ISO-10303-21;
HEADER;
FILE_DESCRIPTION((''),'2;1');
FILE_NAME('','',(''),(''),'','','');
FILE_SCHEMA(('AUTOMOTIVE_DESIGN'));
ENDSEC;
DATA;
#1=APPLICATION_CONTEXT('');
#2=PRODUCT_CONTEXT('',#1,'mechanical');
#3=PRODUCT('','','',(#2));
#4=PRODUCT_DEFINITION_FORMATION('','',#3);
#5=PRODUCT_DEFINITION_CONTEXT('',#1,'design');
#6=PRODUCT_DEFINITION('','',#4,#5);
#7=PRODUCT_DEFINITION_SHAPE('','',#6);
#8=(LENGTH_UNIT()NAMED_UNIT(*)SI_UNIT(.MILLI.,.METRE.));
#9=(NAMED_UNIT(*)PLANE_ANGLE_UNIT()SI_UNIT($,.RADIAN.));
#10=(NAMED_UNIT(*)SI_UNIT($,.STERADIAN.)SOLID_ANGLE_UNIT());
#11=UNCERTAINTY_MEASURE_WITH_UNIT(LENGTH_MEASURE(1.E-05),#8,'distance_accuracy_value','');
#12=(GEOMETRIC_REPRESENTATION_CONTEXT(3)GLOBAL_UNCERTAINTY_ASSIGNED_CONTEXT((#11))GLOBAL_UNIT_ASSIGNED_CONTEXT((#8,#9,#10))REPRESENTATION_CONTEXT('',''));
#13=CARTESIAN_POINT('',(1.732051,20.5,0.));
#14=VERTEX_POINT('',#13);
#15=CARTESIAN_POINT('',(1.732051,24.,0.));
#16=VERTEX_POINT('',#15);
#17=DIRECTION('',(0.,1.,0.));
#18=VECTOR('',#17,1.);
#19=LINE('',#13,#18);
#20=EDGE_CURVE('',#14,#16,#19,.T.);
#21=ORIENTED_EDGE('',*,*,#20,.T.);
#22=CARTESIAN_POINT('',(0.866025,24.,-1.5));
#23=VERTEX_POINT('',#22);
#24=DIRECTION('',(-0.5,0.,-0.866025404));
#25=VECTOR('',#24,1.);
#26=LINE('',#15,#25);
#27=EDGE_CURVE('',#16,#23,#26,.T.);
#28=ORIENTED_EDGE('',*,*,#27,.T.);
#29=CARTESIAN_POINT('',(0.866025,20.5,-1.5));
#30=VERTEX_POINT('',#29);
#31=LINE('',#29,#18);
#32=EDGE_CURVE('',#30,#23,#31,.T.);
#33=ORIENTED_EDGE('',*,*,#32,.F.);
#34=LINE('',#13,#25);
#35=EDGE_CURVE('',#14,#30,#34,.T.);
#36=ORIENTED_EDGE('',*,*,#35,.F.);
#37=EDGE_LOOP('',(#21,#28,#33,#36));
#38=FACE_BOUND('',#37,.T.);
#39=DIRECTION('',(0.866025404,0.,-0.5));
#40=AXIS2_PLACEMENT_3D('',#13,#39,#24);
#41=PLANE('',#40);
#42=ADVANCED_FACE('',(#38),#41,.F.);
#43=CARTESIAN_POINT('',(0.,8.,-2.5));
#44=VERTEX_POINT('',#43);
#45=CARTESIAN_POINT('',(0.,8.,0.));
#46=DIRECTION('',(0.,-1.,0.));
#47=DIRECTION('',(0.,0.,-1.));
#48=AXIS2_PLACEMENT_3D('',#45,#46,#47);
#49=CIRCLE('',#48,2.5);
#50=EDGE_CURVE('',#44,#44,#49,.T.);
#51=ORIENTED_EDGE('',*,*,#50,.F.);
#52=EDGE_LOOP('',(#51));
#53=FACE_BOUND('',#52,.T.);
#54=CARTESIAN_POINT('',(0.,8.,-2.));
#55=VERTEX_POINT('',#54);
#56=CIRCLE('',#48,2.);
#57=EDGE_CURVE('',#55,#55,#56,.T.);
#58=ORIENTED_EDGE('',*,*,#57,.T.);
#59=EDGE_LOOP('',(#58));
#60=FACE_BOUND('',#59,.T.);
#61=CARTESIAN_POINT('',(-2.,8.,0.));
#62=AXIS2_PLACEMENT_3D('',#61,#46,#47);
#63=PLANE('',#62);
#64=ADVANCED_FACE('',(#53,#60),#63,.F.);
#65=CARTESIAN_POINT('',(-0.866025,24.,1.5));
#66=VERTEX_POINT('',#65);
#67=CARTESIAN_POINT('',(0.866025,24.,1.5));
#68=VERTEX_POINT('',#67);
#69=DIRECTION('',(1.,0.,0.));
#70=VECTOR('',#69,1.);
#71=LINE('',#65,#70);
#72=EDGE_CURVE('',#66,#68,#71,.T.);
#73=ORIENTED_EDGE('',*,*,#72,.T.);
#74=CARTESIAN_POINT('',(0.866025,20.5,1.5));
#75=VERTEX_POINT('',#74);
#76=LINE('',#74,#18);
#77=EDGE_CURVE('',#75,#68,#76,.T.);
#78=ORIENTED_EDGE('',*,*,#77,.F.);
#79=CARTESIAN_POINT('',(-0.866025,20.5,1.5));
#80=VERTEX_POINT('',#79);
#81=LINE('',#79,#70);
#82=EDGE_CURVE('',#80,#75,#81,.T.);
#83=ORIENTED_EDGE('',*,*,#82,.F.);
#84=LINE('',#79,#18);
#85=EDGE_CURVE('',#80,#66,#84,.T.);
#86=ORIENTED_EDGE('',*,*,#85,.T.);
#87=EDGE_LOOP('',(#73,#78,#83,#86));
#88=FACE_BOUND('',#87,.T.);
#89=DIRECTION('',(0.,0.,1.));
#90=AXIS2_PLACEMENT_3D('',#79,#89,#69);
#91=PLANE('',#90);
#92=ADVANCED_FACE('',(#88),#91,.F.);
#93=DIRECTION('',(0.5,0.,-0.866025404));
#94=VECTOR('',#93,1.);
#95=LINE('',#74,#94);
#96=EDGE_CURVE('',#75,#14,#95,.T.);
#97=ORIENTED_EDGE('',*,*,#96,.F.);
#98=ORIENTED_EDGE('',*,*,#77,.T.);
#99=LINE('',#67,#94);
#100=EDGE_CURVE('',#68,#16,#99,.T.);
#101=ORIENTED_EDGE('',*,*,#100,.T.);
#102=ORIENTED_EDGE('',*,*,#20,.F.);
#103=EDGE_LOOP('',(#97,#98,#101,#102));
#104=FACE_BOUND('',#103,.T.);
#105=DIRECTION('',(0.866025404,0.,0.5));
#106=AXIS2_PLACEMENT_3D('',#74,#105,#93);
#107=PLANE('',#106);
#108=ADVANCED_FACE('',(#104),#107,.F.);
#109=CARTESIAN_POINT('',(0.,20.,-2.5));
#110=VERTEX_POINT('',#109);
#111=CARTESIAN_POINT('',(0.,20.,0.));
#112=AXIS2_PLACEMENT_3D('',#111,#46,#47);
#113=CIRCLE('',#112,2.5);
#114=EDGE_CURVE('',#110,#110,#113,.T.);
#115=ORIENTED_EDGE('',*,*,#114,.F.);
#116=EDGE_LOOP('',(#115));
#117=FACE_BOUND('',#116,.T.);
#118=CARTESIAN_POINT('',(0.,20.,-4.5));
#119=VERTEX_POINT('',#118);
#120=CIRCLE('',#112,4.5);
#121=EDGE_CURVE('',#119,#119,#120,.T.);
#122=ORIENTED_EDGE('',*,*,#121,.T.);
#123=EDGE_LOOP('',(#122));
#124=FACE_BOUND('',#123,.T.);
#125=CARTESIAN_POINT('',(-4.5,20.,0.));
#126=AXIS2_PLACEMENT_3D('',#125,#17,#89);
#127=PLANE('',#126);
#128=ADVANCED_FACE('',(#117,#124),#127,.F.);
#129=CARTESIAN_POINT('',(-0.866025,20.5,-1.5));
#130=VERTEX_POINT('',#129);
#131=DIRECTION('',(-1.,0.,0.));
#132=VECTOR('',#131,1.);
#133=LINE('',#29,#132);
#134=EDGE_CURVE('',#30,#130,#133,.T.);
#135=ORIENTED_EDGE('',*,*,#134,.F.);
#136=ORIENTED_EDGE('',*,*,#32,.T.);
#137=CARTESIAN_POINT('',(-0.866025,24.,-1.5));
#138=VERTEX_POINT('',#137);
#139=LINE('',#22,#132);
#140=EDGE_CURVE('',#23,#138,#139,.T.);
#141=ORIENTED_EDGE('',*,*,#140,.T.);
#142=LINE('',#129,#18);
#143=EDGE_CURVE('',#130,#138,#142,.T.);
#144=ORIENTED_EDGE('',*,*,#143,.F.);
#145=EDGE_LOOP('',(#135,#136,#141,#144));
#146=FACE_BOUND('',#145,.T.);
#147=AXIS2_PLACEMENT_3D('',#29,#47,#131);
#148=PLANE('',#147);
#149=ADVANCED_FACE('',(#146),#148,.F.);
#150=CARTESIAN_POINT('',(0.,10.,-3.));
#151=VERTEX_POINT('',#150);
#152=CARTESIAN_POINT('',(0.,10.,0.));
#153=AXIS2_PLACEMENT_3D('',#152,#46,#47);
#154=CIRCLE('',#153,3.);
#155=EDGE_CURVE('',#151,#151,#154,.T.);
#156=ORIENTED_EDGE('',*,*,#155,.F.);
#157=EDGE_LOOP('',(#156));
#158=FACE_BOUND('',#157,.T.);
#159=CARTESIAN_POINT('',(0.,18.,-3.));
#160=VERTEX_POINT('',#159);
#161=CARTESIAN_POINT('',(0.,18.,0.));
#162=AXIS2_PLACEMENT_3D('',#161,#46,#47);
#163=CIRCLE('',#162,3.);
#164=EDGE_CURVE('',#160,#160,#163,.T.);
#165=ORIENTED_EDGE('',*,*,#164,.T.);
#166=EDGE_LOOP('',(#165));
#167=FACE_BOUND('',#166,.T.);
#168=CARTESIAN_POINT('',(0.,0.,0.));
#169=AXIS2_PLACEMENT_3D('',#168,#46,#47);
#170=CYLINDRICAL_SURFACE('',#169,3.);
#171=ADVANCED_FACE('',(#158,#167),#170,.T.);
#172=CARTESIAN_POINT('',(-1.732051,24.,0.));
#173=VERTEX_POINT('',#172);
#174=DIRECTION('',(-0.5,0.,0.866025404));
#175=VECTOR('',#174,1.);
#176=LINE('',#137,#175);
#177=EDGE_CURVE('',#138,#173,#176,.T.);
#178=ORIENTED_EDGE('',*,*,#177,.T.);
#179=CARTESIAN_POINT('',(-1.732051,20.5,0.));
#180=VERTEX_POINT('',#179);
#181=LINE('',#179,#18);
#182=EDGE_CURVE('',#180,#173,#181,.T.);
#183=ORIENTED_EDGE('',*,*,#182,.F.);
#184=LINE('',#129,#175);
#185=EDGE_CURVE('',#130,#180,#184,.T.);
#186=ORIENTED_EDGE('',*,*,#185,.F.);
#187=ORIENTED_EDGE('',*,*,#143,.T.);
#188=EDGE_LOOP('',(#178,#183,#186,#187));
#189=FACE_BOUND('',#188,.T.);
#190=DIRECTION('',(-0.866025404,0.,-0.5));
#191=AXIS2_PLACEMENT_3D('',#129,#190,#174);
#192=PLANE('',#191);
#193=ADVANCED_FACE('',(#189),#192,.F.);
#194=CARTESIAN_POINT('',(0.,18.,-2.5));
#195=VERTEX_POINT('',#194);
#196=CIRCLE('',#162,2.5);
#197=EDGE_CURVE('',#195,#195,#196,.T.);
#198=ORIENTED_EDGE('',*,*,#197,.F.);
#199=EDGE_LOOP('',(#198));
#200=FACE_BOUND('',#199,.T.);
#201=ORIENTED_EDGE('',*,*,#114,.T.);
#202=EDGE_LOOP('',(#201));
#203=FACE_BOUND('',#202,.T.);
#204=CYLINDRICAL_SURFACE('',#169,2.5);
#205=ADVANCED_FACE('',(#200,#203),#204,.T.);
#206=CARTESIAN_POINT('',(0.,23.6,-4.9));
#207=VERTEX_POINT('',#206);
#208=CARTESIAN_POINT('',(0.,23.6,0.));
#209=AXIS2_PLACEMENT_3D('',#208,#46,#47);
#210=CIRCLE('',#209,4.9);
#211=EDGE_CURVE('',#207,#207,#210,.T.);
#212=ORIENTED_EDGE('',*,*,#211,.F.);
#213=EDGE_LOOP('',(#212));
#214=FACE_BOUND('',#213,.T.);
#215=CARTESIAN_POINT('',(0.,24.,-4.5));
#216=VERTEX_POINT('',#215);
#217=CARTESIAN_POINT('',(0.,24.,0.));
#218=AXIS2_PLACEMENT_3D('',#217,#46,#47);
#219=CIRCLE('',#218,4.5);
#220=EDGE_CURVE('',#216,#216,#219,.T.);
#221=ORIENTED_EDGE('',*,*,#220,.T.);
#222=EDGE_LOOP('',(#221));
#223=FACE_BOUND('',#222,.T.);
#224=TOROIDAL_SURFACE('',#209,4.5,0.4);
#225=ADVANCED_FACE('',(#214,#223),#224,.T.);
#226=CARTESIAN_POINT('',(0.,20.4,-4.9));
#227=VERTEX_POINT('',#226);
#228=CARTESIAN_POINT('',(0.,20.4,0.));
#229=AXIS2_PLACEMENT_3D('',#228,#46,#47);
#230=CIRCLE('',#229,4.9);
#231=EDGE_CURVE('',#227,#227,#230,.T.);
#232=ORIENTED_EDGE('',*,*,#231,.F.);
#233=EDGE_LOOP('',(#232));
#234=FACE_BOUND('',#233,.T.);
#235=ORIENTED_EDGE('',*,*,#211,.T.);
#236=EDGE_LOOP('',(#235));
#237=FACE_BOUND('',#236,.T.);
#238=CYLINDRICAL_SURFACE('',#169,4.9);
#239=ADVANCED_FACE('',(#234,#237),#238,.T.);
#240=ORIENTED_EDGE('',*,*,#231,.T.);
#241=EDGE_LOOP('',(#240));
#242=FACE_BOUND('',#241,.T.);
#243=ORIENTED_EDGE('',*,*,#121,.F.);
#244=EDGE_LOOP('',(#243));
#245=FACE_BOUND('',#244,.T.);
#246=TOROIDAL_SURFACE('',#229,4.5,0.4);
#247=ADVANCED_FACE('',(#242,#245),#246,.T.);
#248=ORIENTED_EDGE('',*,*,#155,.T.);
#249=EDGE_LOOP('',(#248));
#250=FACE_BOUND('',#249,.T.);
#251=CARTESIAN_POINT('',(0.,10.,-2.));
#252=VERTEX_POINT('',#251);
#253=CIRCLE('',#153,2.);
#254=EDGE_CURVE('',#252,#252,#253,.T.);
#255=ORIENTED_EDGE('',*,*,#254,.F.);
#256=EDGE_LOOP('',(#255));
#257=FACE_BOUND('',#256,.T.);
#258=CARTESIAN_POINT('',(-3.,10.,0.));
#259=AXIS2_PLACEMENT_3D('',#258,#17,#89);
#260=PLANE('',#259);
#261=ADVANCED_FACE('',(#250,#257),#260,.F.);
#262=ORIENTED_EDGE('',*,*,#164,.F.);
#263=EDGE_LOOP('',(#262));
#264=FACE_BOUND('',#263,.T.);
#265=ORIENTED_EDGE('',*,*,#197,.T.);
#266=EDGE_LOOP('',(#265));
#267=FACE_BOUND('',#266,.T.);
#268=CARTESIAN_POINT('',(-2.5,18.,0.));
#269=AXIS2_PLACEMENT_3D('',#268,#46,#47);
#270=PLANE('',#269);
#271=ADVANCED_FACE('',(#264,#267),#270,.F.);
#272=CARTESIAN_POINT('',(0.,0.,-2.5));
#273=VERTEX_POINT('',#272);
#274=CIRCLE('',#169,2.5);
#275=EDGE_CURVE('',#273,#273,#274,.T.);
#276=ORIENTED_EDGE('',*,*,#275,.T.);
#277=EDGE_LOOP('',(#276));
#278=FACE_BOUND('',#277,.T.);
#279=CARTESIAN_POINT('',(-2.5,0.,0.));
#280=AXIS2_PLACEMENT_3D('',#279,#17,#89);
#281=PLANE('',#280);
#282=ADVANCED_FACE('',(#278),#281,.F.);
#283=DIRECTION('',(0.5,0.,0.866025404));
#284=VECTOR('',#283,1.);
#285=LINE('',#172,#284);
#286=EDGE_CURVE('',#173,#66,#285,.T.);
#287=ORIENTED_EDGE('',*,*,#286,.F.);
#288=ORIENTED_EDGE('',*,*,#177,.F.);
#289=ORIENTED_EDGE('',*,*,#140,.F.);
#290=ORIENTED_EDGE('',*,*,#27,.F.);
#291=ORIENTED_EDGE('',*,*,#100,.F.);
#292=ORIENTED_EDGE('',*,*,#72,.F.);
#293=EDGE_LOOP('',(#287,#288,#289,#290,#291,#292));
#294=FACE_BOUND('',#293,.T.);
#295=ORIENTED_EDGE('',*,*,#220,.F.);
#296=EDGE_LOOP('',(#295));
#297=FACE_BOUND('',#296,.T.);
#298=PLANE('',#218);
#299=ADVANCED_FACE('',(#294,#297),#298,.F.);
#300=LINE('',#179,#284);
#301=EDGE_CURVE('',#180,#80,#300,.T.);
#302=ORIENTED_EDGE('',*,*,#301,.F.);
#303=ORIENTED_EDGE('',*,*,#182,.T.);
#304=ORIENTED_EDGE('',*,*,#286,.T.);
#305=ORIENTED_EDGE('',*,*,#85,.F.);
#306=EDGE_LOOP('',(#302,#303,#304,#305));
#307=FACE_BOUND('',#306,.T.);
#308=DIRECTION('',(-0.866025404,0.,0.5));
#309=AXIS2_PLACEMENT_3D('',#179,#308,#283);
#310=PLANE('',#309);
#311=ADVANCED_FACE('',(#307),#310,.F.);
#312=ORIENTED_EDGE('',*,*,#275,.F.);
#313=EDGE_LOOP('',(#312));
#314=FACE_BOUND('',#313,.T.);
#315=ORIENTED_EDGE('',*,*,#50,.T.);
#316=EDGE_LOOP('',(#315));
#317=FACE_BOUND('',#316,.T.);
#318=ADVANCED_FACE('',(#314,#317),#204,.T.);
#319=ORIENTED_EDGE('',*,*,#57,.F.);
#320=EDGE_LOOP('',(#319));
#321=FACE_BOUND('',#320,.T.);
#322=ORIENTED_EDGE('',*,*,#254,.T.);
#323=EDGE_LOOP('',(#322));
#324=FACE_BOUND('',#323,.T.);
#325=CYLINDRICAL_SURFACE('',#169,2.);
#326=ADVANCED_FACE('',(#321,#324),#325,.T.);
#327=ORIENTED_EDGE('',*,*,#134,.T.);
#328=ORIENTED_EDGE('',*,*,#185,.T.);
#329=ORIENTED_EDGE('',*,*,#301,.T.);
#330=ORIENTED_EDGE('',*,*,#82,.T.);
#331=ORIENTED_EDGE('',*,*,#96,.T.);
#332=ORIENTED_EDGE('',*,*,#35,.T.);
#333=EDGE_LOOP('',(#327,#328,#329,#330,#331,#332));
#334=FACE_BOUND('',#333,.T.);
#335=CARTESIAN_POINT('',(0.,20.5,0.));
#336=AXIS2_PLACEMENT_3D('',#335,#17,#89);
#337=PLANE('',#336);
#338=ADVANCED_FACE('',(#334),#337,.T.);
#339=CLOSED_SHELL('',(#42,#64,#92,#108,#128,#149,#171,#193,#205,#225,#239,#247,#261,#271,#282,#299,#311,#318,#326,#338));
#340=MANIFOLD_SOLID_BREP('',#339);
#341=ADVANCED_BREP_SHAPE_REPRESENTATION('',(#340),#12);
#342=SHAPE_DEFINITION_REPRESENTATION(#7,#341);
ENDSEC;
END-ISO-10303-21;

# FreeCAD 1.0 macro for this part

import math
import FreeCAD as App
import Part
import Sketcher

V = App.Vector
Q = App.Units.Quantity


def add_polygon(sketch, points):
    """Adds a closed chain of lines whose ends are joined by coincident constraints."""
    first, n = sketch.GeometryCount, len(points)
    for a, b in zip(points, points[1:] + points[:1]):
        sketch.addGeometry(Part.LineSegment(App.Vector(*a, 0), App.Vector(*b, 0)), False)
    for i in range(n):
        sketch.addConstraint(Sketcher.Constraint("Coincident", first + i, 2, first + (i + 1) % n, 1))

doc = App.newDocument("Part")
params = doc.addObject("Spreadsheet::Sheet", "Params")
for row, (alias, value) in enumerate([
    ("sketch1_radius", "0.4 mm"),
    ("sketch1_width", "2 mm"),
    ("sketch1_width2", "1 mm"),
    ("sketch1_height", "8 mm"),
    ("sketch1_height2", "24 mm"),
    ("revolution_angle", "360 deg"),
    ("pocket1_length", "3.5 mm"),
], start=1):
    params.set(f"A{row}", alias)
    params.set(f"B{row}", "=" + value)
    params.setAlias(f"B{row}", alias)

body = doc.addObject("PartDesign::Body", "Body")

sketch1 = doc.addObject("Sketcher::SketchObject", "Sketch")
body.addObject(sketch1)
sketch1.AttachmentSupport = (doc.XY_Plane, [""])
sketch1.MapMode = "FlatFace"
sketch1.addGeometry(Part.LineSegment(V(0, 24, 0), V(-4.5, 24, 0)), False)
sketch1.addGeometry(Part.ArcOfCircle(Part.Circle(V(-4.5, 23.6, 0), V(0, 0, 1), 0.4), math.radians(90), math.radians(180)), False)
sketch1.addGeometry(Part.LineSegment(V(-4.9, 23.6, 0), V(-4.9, 20.4, 0)), False)
sketch1.addGeometry(Part.ArcOfCircle(Part.Circle(V(-4.5, 20.4, 0), V(0, 0, 1), 0.4), math.radians(-180), math.radians(-90)), False)
sketch1.addGeometry(Part.LineSegment(V(-4.5, 20, 0), V(-2.5, 20, 0)), False)
sketch1.addGeometry(Part.LineSegment(V(-2.5, 20, 0), V(-2.5, 18, 0)), False)
sketch1.addGeometry(Part.LineSegment(V(-2.5, 18, 0), V(-3, 18, 0)), False)
sketch1.addGeometry(Part.LineSegment(V(-3, 18, 0), V(-3, 10, 0)), False)
sketch1.addGeometry(Part.LineSegment(V(-3, 10, 0), V(-2, 10, 0)), False)
sketch1.addGeometry(Part.LineSegment(V(-2, 10, 0), V(-2, 8, 0)), False)
sketch1.addGeometry(Part.LineSegment(V(-2, 8, 0), V(-2.5, 8, 0)), False)
sketch1.addGeometry(Part.LineSegment(V(-2.5, 8, 0), V(-2.5, 0, 0)), False)
sketch1.addGeometry(Part.LineSegment(V(-2.5, 0, 0), V(0, 0, 0)), False)
sketch1.addGeometry(Part.LineSegment(V(0, 0, 0), V(0, 24, 0)), False)
sketch1.addConstraint(Sketcher.Constraint("Tangent", 0, 2, 1, 1))
sketch1.addConstraint(Sketcher.Constraint("Tangent", 1, 2, 2, 1))
sketch1.addConstraint(Sketcher.Constraint("Tangent", 2, 2, 3, 1))
sketch1.addConstraint(Sketcher.Constraint("Tangent", 3, 2, 4, 1))
sketch1.addConstraint(Sketcher.Constraint("Coincident", 4, 2, 5, 1))
sketch1.addConstraint(Sketcher.Constraint("Coincident", 5, 2, 6, 1))
sketch1.addConstraint(Sketcher.Constraint("Coincident", 6, 2, 7, 1))
sketch1.addConstraint(Sketcher.Constraint("Coincident", 7, 2, 8, 1))
sketch1.addConstraint(Sketcher.Constraint("Coincident", 8, 2, 9, 1))
sketch1.addConstraint(Sketcher.Constraint("Coincident", 9, 2, 10, 1))
sketch1.addConstraint(Sketcher.Constraint("Coincident", 10, 2, 11, 1))
sketch1.addConstraint(Sketcher.Constraint("Coincident", 11, 2, 12, 1))
sketch1.addConstraint(Sketcher.Constraint("Coincident", 12, 2, 13, 1))
sketch1.addConstraint(Sketcher.Constraint("Coincident", 13, 2, 0, 1))
sketch1.addConstraint(Sketcher.Constraint("Horizontal", 0))
sketch1.addConstraint(Sketcher.Constraint("Vertical", 2))
sketch1.addConstraint(Sketcher.Constraint("Horizontal", 4))
sketch1.addConstraint(Sketcher.Constraint("Vertical", 5))
sketch1.addConstraint(Sketcher.Constraint("Horizontal", 6))
sketch1.addConstraint(Sketcher.Constraint("Vertical", 7))
sketch1.addConstraint(Sketcher.Constraint("Horizontal", 8))
sketch1.addConstraint(Sketcher.Constraint("Vertical", 9))
sketch1.addConstraint(Sketcher.Constraint("Horizontal", 10))
sketch1.addConstraint(Sketcher.Constraint("Vertical", 11))
sketch1.addConstraint(Sketcher.Constraint("Horizontal", 12))
sketch1.addConstraint(Sketcher.Constraint("Vertical", 13))
sketch1.addConstraint(Sketcher.Constraint("Coincident", 12, 2, -1, 1))
sketch1.addConstraint(Sketcher.Constraint("Equal", 1, 3))
sketch1.addConstraint(Sketcher.Constraint("Vertical", 5, 2, 10, 2))
sketch1.addConstraint(Sketcher.Constraint("Equal", 6, 10))
sketch1.addConstraint(Sketcher.Constraint("Equal", 4, 5))
sketch1.addConstraint(Sketcher.Constraint("Equal", 5, 9))
sketch1.addConstraint(Sketcher.Constraint("Equal", 7, 11))
sketch1.addConstraint(Sketcher.Constraint("Radius", 1, Q("0.4 mm")))
sketch1.addConstraint(Sketcher.Constraint("DistanceX", 4, 1, 4, 2, Q("2 mm")))
sketch1.addConstraint(Sketcher.Constraint("DistanceX", 8, 1, 8, 2, Q("1 mm")))
sketch1.addConstraint(Sketcher.Constraint("DistanceY", 7, 2, 7, 1, Q("8 mm")))
sketch1.addConstraint(Sketcher.Constraint("DistanceY", 13, 1, 13, 2, Q("24 mm")))
sketch1.addConstraint(Sketcher.Constraint("DistanceX", 0, 2, 0, 1, Q("4.5 mm")))
sketch1.setExpression("Constraints[33]", "Params.sketch1_radius")
sketch1.setExpression("Constraints[34]", "Params.sketch1_width")
sketch1.setExpression("Constraints[35]", "Params.sketch1_width2")
sketch1.setExpression("Constraints[36]", "Params.sketch1_height")
sketch1.setExpression("Constraints[37]", "Params.sketch1_height2")
revolution = doc.addObject("PartDesign::Revolution", "Revolution")
body.addObject(revolution)
revolution.Profile = sketch1
revolution.ReferenceAxis = (sketch1, ["V_Axis"])
revolution.setExpression("Angle", "Params.revolution_angle")

sketch2 = doc.addObject("Sketcher::SketchObject", "Sketch001")
body.addObject(sketch2)
sketch2.AttachmentSupport = (doc.XZ_Plane, [""])
sketch2.MapMode = "FlatFace"
sketch2.AttachmentOffset = App.Placement(V(0, 0, -24), App.Rotation())
add_polygon(sketch2, [(0.9, -1.5), (-0.9, -1.5), (-1.7, 0), (-0.9, 1.5), (0.9, 1.5), (1.7, 0)])
sketch2.addConstraint(Sketcher.Constraint("Horizontal", 0))
sketch2.addConstraint(Sketcher.Constraint("Horizontal", 3))
sketch2.addConstraint(Sketcher.Constraint("Symmetric", 0, 2, 3, 2, -1, 1))
sketch2.addConstraint(Sketcher.Constraint("Symmetric", 1, 2, 4, 2, -1, 1))
sketch2.addConstraint(Sketcher.Constraint("PointOnObject", 1, 2, -1))
sketch2.addConstraint(Sketcher.Constraint("Parallel", 2, 5))
sketch2.addConstraint(Sketcher.Constraint("Vertical", 0, 2, 2, 2))
sketch2.addConstraint(Sketcher.Constraint("Angle", 1, Q("120 deg")))
sketch2.addConstraint(Sketcher.Constraint("DistanceY", 0, 2, 2, 2, Q("3 mm")))
sketch2.addConstraint(Sketcher.Constraint("DistanceX", 0, 2, 0, 1, Q("1.732051 mm")))
pocket1 = doc.addObject("PartDesign::Pocket", "Pocket")
body.addObject(pocket1)
pocket1.Profile = sketch2
pocket1.setExpression("Length", "Params.pocket1_length")
pocket1.Reversed = True

doc.recompute()
